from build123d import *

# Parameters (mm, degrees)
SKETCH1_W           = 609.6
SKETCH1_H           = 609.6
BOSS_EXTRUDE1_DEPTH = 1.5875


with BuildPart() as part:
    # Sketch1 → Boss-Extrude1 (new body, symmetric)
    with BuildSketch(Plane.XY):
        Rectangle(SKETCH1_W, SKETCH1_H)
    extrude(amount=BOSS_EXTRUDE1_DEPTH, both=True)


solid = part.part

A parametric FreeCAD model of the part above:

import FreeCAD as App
import Part
import Sketcher
from FreeCAD import Vector
Q = App.Units.Quantity


def add_polygon(sketch, points):
    """Adds a closed chain of lines whose ends are joined by coincident constraints."""
    first, n = sketch.GeometryCount, len(points)
    for a, b in zip(points, points[1:] + points[:1]):
        sketch.addGeometry(Part.LineSegment(App.Vector(*a, 0), App.Vector(*b, 0)), False)
    for i in range(n):
        sketch.addConstraint(Sketcher.Constraint("Coincident", first + i, 2, first + (i + 1) % n, 1))

doc = App.newDocument("Part")
body = doc.addObject("PartDesign::Body", "Body")

# Sketch on XY plane
sketch1 = body.newObject("Sketcher::SketchObject", "Sketch")
sketch1.AttachmentSupport = (doc.getObject("XY_Plane"), [""])
sketch1.MapMode = "FlatFace"
add_polygon(sketch1, [(-305, 305), (-305, -305), (305, -305), (305, 305)])  # lines 0-3
sketch1.addConstraint([
    Sketcher.Constraint("Vertical", 0),
    Sketcher.Constraint("Horizontal", 1),
    Sketcher.Constraint("Vertical", 2),
    Sketcher.Constraint("Horizontal", 3),
    Sketcher.Constraint("Symmetric", 0, 2, 2, 2, -1, 1),
    Sketcher.Constraint("Equal", 3, 0),
    Sketcher.Constraint("DistanceX", 1, 1, 1, 2, Q("24 in")),
])
pad1 = body.newObject("PartDesign::Pad", "Pad")
pad1.Profile = sketch1
pad1.Length = Q("0.125 in")
pad1.Midplane = True

doc.recompute()
